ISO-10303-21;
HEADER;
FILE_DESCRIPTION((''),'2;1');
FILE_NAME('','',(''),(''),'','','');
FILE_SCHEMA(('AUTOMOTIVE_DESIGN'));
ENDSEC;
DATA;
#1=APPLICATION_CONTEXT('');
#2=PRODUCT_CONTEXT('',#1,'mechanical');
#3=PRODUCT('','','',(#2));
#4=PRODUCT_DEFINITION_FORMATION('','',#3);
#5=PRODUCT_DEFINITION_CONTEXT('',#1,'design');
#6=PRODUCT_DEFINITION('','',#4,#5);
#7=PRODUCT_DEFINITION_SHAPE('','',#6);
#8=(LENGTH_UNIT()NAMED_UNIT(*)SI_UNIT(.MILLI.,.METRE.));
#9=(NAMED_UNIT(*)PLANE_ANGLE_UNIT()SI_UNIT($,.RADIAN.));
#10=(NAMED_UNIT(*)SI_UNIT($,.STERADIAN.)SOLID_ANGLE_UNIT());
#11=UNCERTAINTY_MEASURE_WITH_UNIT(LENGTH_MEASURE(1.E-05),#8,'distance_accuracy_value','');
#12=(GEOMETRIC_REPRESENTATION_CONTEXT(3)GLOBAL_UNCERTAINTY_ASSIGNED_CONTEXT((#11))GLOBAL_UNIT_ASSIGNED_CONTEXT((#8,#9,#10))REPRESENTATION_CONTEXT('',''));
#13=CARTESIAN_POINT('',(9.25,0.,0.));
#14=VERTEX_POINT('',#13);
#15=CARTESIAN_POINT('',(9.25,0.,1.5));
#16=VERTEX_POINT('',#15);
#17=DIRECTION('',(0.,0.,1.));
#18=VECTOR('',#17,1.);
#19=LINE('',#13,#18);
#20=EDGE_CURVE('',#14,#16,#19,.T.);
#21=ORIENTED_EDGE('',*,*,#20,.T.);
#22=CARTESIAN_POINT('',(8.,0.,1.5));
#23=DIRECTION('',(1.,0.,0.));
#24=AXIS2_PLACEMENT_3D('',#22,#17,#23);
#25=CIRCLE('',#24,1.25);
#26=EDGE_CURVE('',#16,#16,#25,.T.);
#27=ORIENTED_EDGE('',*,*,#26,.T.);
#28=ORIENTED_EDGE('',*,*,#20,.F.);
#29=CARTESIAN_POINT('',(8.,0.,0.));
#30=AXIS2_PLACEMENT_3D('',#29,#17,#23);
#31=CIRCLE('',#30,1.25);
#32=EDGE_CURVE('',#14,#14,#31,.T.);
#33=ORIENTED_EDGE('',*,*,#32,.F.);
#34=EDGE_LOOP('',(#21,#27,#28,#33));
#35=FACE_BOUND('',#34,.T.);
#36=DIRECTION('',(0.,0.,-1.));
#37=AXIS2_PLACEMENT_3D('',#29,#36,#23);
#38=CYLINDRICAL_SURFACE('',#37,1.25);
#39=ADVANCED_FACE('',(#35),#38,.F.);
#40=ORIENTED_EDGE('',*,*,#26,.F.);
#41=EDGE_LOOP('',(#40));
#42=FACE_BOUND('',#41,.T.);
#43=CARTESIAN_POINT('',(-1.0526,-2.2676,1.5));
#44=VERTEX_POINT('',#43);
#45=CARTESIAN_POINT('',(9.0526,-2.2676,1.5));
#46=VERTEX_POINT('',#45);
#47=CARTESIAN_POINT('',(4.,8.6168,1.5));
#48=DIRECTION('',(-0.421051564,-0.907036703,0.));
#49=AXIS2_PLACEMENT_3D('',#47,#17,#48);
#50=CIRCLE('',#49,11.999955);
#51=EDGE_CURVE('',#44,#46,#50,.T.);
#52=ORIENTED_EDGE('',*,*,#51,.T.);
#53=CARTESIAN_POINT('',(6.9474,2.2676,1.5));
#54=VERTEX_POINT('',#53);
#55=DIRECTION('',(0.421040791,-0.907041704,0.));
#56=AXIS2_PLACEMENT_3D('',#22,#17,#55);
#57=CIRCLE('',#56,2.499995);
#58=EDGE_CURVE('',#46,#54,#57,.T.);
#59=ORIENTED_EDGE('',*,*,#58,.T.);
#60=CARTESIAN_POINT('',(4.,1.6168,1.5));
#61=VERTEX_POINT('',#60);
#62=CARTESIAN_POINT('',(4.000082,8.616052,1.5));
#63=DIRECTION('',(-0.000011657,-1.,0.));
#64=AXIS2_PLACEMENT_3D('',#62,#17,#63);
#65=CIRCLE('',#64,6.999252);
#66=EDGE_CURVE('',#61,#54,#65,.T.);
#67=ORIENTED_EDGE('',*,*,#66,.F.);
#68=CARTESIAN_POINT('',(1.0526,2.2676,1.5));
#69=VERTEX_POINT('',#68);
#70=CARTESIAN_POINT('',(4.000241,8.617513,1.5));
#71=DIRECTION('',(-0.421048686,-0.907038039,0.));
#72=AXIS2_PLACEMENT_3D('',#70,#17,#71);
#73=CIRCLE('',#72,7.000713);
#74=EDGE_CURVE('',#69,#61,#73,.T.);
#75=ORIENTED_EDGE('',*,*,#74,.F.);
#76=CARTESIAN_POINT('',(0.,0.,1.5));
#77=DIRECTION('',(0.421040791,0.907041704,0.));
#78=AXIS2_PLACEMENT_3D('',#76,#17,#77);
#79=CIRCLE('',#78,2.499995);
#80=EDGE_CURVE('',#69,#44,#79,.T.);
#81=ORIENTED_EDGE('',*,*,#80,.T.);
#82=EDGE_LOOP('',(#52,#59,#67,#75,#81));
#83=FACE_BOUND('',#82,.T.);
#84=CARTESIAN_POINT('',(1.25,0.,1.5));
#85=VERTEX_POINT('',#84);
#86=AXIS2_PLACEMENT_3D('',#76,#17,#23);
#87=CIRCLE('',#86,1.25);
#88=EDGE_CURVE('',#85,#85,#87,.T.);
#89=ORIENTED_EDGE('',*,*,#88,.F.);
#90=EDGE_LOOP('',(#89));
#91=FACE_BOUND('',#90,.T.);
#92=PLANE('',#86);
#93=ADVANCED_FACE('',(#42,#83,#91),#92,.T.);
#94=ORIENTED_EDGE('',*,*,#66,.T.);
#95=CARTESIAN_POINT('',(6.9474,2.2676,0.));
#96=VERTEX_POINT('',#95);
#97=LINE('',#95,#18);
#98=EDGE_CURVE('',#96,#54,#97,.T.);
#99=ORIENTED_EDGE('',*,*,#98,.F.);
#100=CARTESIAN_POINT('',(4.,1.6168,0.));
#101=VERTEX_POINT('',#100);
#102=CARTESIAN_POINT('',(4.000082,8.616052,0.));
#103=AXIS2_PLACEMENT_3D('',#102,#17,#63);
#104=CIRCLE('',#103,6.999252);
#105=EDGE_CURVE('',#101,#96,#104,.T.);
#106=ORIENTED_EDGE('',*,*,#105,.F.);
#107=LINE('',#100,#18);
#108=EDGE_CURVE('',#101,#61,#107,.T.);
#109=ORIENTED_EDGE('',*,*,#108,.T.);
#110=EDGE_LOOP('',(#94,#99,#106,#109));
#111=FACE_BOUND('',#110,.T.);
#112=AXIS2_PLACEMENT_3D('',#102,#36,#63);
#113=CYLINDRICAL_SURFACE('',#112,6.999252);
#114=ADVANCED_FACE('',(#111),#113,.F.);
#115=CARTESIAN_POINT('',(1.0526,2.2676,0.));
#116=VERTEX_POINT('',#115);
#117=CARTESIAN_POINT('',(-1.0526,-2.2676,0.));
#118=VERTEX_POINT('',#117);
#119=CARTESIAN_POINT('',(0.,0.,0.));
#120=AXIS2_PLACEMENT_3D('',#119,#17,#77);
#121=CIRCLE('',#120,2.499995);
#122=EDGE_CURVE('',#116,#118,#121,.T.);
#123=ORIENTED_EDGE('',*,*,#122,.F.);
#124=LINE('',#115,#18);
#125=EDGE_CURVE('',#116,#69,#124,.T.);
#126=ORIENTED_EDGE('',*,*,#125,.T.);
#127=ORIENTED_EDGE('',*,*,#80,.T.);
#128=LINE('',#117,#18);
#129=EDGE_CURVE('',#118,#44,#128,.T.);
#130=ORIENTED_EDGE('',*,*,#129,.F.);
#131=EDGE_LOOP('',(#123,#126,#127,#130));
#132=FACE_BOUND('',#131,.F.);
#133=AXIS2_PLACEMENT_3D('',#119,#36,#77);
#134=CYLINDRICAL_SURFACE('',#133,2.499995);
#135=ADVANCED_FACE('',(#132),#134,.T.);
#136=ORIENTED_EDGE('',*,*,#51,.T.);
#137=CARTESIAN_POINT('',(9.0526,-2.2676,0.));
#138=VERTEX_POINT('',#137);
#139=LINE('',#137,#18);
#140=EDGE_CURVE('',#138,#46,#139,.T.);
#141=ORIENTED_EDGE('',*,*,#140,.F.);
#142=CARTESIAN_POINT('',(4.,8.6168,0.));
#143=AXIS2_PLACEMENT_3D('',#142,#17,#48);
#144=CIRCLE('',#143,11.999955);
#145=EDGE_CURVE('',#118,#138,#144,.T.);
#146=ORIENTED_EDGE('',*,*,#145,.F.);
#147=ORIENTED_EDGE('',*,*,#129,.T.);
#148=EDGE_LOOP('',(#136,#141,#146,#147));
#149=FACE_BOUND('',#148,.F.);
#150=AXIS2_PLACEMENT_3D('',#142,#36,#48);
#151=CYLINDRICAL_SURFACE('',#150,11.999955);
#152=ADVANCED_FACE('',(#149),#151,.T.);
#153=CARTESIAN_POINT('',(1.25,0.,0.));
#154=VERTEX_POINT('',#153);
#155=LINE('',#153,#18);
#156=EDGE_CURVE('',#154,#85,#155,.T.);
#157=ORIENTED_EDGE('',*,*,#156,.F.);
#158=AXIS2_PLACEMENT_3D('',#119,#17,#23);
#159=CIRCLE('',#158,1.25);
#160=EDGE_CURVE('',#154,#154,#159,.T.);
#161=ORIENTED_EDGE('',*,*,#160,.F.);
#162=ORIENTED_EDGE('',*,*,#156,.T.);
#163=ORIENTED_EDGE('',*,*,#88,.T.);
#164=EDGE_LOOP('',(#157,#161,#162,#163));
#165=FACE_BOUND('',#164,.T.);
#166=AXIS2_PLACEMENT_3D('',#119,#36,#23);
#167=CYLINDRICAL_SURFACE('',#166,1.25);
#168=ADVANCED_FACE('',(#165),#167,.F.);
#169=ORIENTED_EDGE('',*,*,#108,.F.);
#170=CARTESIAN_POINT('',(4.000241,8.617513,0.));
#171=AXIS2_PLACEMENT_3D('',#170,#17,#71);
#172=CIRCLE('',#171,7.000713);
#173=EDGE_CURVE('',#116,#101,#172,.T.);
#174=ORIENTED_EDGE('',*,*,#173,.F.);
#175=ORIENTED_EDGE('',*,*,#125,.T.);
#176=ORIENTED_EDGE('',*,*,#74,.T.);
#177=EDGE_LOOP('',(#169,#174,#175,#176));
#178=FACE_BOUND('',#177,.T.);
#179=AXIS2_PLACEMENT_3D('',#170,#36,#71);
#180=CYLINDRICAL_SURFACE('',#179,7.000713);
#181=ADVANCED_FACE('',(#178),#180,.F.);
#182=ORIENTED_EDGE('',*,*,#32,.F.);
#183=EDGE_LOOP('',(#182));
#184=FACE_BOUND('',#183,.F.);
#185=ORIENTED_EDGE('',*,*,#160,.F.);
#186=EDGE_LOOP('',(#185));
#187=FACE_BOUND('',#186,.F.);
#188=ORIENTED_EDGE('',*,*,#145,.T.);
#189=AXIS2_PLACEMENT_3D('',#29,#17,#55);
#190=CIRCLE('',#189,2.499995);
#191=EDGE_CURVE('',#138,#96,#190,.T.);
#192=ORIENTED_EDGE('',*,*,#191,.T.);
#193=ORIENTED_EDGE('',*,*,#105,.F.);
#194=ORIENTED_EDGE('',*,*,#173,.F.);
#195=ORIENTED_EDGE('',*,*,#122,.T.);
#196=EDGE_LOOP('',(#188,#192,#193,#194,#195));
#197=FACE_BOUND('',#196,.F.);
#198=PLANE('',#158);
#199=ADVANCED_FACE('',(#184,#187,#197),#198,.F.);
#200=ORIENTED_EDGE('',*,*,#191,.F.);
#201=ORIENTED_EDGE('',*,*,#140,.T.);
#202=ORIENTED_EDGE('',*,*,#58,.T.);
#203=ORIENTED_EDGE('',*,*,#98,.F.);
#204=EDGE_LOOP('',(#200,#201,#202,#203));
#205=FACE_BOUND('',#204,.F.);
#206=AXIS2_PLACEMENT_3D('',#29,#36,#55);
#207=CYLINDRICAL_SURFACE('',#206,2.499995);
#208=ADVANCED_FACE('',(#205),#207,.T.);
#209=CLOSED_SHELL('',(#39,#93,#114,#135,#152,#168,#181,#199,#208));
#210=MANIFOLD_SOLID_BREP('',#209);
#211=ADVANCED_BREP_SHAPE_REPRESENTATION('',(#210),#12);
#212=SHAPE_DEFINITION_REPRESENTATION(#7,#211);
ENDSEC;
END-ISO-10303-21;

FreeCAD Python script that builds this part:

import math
import FreeCAD as App
import Part
import Sketcher

V = App.Vector

doc = App.newDocument("Part")
body = doc.addObject("PartDesign::Body", "Body")

# Sketch on XY plane
sketch1 = doc.addObject("Sketcher::SketchObject", "Sketch")
body.addObject(sketch1)
sketch1.AttachmentSupport = (doc.XY_Plane, [""])
sketch1.MapMode = "FlatFace"
sketch1.addGeometry([
    Part.ArcOfCircle(Part.Circle(V(4, 8.6, 0), V(0, 0, 1), 7), math.radians(-115), math.radians(-90)),  # 0
    Part.ArcOfCircle(Part.Circle(V(0, 0, 0), V(0, 0, 1), 2.5), math.radians(65), math.radians(245)),  # 1
    Part.ArcOfCircle(Part.Circle(V(4, 8.6, 0), V(0, 0, 1), 12), math.radians(-115), math.radians(-65)),  # 2
    Part.ArcOfCircle(Part.Circle(V(8, 0, 0), V(0, 0, 1), 2.5), math.radians(-65), math.radians(115)),  # 3
    Part.ArcOfCircle(Part.Circle(V(4, 8.6, 0), V(0, 0, 1), 7), math.radians(-90), math.radians(-65)),  # 4
    Part.Circle(V(0, 0, 0), V(0, 0, 1), 1.2),  # 5
    Part.Circle(V(8, 0, 0), V(0, 0, 1), 1.2),  # 6
], False)
sketch1.addConstraint([
    Sketcher.Constraint("Tangent", 0, 1, 1, 1),
    Sketcher.Constraint("Tangent", 1, 2, 2, 1),
    Sketcher.Constraint("Tangent", 2, 2, 3, 1),
    Sketcher.Constraint("Tangent", 3, 2, 4, 2),
    Sketcher.Constraint("Tangent", 4, 1, 0, 2),
    Sketcher.Constraint("Coincident", 1, 3, -1, 1),
    Sketcher.Constraint("Coincident", 5, 3, -1, 1),
    Sketcher.Constraint("Coincident", 2, 3, 0, 3),
    Sketcher.Constraint("Coincident", 6, 3, 3, 3),
    Sketcher.Constraint("Equal", 1, 3),
    Sketcher.Constraint("Equal", 5, 6),
    Sketcher.Constraint("PointOnObject", 3, 3, -1),
    Sketcher.Constraint("Vertical", 2, 3, 4, 1),
    Sketcher.Constraint("Radius", 2, 12.0),
    Sketcher.Constraint("Diameter", 5, 2.5),
    Sketcher.Constraint("Radius", 1, 2.5),
    Sketcher.Constraint("DistanceX", -1, 1, 3, 3, 8.0),
])
pad1 = doc.addObject("PartDesign::Pad", "Pad")
body.addObject(pad1)
pad1.Profile = sketch1
pad1.Length = 1.5

doc.recompute()
